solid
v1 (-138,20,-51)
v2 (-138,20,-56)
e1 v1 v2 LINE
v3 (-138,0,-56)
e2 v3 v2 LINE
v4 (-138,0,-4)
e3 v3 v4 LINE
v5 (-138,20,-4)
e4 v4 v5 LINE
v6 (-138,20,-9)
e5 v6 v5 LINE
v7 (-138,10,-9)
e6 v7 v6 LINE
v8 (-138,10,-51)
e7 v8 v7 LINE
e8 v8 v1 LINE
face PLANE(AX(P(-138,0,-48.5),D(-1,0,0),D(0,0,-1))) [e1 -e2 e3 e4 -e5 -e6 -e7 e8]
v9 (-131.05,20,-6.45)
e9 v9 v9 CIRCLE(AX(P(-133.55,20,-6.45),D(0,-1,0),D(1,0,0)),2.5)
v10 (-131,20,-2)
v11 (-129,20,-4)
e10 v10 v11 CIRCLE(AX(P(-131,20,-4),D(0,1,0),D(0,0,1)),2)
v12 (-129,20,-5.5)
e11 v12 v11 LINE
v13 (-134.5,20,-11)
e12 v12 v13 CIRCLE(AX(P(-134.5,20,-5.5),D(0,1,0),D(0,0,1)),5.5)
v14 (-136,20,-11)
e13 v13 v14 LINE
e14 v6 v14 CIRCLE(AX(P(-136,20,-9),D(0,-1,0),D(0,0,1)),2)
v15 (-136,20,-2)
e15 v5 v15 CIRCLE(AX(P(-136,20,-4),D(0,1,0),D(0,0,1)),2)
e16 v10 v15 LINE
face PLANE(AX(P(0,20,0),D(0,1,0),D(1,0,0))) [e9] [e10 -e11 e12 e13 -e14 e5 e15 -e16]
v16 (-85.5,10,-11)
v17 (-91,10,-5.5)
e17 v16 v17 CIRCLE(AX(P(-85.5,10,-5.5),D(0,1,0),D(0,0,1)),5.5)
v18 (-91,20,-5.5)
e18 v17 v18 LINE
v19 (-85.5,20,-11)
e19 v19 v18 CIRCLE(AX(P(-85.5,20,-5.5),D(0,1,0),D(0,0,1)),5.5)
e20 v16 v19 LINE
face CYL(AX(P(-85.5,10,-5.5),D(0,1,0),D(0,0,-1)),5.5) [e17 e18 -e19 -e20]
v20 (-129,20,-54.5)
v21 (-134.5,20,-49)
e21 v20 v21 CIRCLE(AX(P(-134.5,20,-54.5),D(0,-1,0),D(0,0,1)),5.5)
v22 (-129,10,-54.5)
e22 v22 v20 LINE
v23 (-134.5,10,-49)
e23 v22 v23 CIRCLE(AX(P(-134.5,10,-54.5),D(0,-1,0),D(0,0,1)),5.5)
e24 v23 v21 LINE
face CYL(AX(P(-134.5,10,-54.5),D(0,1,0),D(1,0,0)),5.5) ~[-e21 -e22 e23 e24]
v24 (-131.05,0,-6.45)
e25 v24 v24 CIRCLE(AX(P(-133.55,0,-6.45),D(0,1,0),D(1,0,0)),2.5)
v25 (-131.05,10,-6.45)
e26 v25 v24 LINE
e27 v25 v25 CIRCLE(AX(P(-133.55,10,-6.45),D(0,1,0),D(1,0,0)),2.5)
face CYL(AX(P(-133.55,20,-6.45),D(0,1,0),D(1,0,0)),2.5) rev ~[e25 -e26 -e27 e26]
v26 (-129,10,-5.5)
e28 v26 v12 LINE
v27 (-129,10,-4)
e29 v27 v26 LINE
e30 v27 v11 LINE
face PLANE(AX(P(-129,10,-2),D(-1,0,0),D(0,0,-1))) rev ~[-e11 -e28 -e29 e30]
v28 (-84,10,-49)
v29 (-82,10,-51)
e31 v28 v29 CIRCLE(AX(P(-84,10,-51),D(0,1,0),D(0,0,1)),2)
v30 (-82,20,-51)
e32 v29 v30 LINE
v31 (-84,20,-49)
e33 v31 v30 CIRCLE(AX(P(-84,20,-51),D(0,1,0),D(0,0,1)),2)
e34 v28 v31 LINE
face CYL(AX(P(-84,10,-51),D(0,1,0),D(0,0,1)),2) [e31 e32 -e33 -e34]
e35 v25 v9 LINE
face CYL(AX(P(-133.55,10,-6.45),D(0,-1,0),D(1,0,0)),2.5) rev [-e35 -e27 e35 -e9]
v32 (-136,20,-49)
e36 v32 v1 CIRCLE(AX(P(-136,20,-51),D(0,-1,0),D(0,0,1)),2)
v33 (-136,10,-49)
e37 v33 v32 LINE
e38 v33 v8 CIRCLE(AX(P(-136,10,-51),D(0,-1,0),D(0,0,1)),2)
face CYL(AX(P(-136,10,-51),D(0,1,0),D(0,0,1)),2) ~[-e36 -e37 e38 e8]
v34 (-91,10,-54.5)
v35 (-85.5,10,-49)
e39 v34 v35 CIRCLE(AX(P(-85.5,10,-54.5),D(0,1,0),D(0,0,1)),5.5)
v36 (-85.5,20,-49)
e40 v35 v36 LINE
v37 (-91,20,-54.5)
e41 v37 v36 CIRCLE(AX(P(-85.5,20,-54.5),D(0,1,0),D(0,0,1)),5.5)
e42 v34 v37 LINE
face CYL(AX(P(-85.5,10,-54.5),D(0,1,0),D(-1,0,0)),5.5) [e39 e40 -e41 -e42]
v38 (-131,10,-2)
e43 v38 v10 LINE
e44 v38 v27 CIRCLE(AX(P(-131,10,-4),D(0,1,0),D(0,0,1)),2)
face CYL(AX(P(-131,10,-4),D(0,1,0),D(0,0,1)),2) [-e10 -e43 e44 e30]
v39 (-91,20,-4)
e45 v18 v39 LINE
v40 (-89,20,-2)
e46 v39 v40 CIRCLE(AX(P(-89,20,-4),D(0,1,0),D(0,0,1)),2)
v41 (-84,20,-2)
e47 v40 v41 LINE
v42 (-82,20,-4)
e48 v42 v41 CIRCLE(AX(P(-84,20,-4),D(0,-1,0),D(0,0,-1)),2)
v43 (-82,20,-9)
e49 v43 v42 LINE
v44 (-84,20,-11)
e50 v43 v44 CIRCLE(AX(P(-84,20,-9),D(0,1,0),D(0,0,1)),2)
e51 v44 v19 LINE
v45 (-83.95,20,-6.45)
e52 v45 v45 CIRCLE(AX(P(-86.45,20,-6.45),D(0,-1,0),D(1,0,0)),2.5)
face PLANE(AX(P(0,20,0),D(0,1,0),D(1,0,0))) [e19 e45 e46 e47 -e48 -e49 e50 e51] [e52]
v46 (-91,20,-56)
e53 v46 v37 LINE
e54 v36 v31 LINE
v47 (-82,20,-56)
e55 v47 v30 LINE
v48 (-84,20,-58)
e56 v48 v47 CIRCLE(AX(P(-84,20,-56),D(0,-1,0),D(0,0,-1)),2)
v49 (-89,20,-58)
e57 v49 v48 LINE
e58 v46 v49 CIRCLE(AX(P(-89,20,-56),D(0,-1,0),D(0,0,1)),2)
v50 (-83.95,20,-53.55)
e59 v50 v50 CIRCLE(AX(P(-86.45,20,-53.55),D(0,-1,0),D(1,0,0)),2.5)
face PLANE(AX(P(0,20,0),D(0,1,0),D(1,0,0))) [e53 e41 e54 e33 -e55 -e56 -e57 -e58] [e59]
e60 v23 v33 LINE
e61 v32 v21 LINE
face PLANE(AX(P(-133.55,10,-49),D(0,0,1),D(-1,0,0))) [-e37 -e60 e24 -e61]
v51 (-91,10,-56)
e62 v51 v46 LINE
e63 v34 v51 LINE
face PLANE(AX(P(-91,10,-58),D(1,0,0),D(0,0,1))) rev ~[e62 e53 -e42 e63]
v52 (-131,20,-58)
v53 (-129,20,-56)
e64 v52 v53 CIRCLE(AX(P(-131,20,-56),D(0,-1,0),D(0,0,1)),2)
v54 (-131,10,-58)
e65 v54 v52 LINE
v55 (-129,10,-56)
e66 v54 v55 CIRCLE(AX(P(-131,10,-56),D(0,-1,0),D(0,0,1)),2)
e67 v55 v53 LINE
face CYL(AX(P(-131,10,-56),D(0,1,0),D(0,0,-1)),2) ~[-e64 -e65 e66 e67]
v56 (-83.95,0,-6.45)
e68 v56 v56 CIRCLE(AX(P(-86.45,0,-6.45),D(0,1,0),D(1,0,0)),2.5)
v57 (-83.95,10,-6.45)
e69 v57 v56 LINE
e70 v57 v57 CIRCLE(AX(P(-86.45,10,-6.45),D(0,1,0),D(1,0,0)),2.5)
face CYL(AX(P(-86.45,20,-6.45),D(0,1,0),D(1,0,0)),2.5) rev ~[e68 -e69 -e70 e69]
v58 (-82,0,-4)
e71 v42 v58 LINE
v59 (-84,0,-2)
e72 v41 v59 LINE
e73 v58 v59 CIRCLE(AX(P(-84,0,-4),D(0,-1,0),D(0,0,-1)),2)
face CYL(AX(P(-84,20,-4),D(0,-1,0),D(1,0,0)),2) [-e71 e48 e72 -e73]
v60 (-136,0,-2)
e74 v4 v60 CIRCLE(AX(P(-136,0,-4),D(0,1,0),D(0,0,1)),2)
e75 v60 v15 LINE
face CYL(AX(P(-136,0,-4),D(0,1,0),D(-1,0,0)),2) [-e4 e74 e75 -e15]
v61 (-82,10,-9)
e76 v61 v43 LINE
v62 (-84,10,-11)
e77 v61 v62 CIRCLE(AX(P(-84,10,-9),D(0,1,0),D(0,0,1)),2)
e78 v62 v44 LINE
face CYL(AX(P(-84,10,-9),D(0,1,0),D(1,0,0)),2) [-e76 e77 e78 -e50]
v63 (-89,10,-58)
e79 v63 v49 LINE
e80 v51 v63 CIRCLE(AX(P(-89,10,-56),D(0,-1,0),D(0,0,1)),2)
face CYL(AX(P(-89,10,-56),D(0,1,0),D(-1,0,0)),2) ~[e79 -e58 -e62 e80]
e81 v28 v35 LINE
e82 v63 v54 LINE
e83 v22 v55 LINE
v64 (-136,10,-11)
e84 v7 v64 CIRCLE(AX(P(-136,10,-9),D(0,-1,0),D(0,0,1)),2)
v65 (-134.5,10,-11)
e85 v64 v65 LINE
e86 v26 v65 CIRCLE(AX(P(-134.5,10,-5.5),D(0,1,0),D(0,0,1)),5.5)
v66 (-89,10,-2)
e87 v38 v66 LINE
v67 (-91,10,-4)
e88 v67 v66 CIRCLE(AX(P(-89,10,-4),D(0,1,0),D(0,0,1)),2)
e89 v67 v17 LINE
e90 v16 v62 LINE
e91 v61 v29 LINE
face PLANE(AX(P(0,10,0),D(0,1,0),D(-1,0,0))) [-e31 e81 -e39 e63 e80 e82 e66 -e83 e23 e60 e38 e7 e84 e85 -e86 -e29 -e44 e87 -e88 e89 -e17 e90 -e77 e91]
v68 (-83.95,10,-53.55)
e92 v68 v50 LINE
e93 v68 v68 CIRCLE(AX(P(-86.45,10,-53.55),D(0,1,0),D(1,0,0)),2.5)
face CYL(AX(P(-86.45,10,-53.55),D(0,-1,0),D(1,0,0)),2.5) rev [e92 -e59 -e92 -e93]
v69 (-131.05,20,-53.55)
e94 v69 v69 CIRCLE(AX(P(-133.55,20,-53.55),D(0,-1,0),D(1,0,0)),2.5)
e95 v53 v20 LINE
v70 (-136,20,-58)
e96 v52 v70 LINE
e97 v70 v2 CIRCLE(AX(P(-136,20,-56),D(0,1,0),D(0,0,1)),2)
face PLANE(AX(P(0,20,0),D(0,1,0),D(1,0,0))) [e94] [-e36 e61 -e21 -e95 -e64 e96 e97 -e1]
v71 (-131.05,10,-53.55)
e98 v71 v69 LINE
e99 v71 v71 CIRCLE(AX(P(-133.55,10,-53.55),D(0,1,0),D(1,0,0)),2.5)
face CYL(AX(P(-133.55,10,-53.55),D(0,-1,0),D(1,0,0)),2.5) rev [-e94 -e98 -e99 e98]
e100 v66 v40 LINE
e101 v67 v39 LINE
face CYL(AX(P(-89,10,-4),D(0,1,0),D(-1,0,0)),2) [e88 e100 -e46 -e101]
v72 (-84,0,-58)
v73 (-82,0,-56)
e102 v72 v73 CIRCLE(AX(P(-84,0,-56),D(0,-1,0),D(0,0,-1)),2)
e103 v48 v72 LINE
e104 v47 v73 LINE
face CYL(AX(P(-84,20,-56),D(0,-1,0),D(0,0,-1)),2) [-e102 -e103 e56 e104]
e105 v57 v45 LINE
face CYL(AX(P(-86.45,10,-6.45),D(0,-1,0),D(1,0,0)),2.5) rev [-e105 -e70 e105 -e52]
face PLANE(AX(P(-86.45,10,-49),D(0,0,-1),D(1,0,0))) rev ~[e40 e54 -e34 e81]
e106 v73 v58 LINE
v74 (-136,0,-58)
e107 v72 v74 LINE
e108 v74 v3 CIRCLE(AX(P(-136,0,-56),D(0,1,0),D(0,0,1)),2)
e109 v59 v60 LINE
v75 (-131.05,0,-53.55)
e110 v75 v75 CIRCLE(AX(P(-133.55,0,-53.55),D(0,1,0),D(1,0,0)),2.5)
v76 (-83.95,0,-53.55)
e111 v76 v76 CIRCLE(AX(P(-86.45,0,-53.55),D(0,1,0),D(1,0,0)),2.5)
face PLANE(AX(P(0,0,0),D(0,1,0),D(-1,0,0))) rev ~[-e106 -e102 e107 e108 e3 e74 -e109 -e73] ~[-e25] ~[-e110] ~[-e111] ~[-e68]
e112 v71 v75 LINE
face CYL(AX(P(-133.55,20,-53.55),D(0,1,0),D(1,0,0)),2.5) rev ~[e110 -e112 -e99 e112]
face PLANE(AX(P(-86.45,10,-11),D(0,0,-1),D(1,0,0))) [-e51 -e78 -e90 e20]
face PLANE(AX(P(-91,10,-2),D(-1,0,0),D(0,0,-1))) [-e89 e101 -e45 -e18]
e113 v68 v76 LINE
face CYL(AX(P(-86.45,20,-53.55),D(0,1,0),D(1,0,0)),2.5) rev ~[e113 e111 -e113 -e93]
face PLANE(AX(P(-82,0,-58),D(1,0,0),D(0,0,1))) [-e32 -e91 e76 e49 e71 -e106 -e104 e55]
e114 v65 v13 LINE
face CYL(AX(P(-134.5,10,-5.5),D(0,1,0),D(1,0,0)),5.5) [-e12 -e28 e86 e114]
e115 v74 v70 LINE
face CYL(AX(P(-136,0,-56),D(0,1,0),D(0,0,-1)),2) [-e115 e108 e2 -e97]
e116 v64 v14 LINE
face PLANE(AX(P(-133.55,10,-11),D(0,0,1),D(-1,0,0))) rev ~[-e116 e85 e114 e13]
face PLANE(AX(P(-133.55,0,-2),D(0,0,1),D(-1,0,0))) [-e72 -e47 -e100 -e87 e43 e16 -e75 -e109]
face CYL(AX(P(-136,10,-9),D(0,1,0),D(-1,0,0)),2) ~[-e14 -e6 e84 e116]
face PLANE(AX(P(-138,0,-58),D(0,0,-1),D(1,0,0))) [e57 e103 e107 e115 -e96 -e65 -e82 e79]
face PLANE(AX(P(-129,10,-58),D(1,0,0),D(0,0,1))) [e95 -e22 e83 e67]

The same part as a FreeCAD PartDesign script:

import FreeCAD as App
import Part
import Sketcher

V = App.Vector


def edges_at(feature, points):
    """Names of the edges that pass closest to the given points."""
    edges = feature.Shape.Edges
    near = lambda p: min(range(len(edges)), key=lambda i: edges[i].distToShape(Part.Vertex(*p))[0])
    return sorted({f"Edge{near(p) + 1}" for p in points})


def add_polygon(sketch, points):
    """Adds a closed chain of lines whose ends are joined by coincident constraints."""
    first, n = sketch.GeometryCount, len(points)
    for a, b in zip(points, points[1:] + points[:1]):
        sketch.addGeometry(Part.LineSegment(App.Vector(*a, 0), App.Vector(*b, 0)), False)
    for i in range(n):
        sketch.addConstraint(Sketcher.Constraint("Coincident", first + i, 2, first + (i + 1) % n, 1))

doc = App.newDocument("Part")
body = doc.addObject("PartDesign::Body", "Body")

sketch1 = body.newObject("Sketcher::SketchObject", "Sketch")
sketch1.AttachmentSupport = (doc.getObject("XZ_Plane"), [""])
sketch1.MapMode = "FlatFace"
add_polygon(sketch1, [(-138, -58), (-138, -2), (-82, -2), (-82, -58)])
sketch1.addConstraint([
    Sketcher.Constraint("Vertical", 0),
    Sketcher.Constraint("Horizontal", 1),
    Sketcher.Constraint("Vertical", 2),
    Sketcher.Constraint("Horizontal", 3),
    Sketcher.Constraint("Equal", 3, 0),
    Sketcher.Constraint("DistanceX", 1, 1, 1, 2, 56.0),
    Sketcher.Constraint("DistanceX", 0, 2, -1, 1, 138.0),
    Sketcher.Constraint("DistanceY", 0, 2, -1, 1, 2.0),
])
pad1 = body.newObject("PartDesign::Pad", "Pad")
pad1.Profile = sketch1
pad1.Length = 10
pad1.Reversed = True

sketch2 = body.newObject("Sketcher::SketchObject", "Sketch001")
sketch2.AttachmentSupport = (doc.getObject("XZ_Plane"), [""])
sketch2.MapMode = "FlatFace"
sketch2.AttachmentOffset = App.Placement(V(0, 0, -10), App.Rotation())
add_polygon(sketch2, [(-82, -58), (-91, -58), (-91, -49), (-82, -49)])
sketch2.addGeometry(Part.Circle(V(-86.45, -53.55, 0), V(0, 0, 1), 2.5), False)
add_polygon(sketch2, [(-82, -2), (-82, -11), (-91, -11), (-91, -2)])
sketch2.addGeometry(Part.Circle(V(-86.45, -6.45, 0), V(0, 0, 1), 2.5), False)
add_polygon(sketch2, [(-129, -58), (-138, -58), (-138, -49), (-129, -49)])
sketch2.addGeometry(Part.Circle(V(-133.55, -53.55, 0), V(0, 0, 1), 2.5), False)
add_polygon(sketch2, [(-129, -2), (-129, -11), (-138, -11), (-138, -2)])
sketch2.addGeometry(Part.Circle(V(-133.55, -6.45, 0), V(0, 0, 1), 2.5), False)
sketch2.addConstraint([
    Sketcher.Constraint("Horizontal", 0),
    Sketcher.Constraint("Vertical", 1),
    Sketcher.Constraint("Horizontal", 2),
    Sketcher.Constraint("Vertical", 3),
    Sketcher.Constraint("Vertical", 5),
    Sketcher.Constraint("Horizontal", 6),
    Sketcher.Constraint("Vertical", 7),
    Sketcher.Constraint("Horizontal", 8),
    Sketcher.Constraint("Horizontal", 10),
    Sketcher.Constraint("Vertical", 11),
    Sketcher.Constraint("Horizontal", 12),
    Sketcher.Constraint("Vertical", 13),
    Sketcher.Constraint("Vertical", 15),
    Sketcher.Constraint("Horizontal", 16),
    Sketcher.Constraint("Vertical", 17),
    Sketcher.Constraint("Horizontal", 18),
    Sketcher.Constraint("Equal", 4, 9),
    Sketcher.Constraint("Equal", 9, 14),
    Sketcher.Constraint("Equal", 14, 19),
    Sketcher.Constraint("Horizontal", 4, 3, 14, 3),
    Sketcher.Constraint("Horizontal", 9, 3, 19, 3),
    Sketcher.Constraint("Horizontal", 3, 2, 10, 2),
    Sketcher.Constraint("Horizontal", 2, 2, 11, 2),
    Sketcher.Constraint("Horizontal", 6, 2, 15, 2),
    Sketcher.Constraint("Horizontal", 8, 2, 17, 2),
    Sketcher.Constraint("Vertical", 4, 3, 9, 3),
    Sketcher.Constraint("Vertical", 14, 3, 19, 3),
    Sketcher.Constraint("Vertical", 3, 2, 5, 2),
    Sketcher.Constraint("Vertical", 1, 2, 6, 2),
    Sketcher.Constraint("Vertical", 13, 2, 15, 2),
    Sketcher.Constraint("Vertical", 11, 2, 16, 2),
    Sketcher.Constraint("Equal", 8, 10),
    Sketcher.Constraint("Equal", 18, 1),
    Sketcher.Constraint("Equal", 3, 5),
    Sketcher.Constraint("DistanceX", 0, 2, 0, 1, 9.0),
    Sketcher.Constraint("Diameter", 4, 5.0),
    Sketcher.Constraint("DistanceX", 0, 2, -1, 1, 91.0),
    Sketcher.Constraint("DistanceY", 0, 2, -1, 1, 58.0),
    Sketcher.Constraint("DistanceY", 5, 2, -1, 1, 11.0),
    Sketcher.Constraint("DistanceX", 10, 2, -1, 1, 138.0),
    Sketcher.Constraint("DistanceY", 4, 3, 9, 3, 47.1),
    Sketcher.Constraint("DistanceX", 14, 3, 4, 3, 47.1),
    Sketcher.Constraint("DistanceX", 4, 3, -1, 1, 86.45),
    Sketcher.Constraint("DistanceY", 4, 3, -1, 1, 53.55),
])
pad2 = body.newObject("PartDesign::Pad", "Pad001")
pad2.Profile = sketch2
pad2.Length = 10
pad2.Reversed = True
doc.recompute()

fillet = body.newObject("PartDesign::Fillet", "Fillet")
fillet.Base = (pad2, edges_at(pad2, [
    (-91, 15, -49),
    (-129, 15, -49),
    (-129, 15, -11),
    (-91, 15, -11),
]))
fillet.Radius = 5.5
doc.recompute()

fillet2 = body.newObject("PartDesign::Fillet", "Fillet001")
fillet2.Base = (fillet, edges_at(fillet, [
    (-82, 10, -2),
    (-138, 10, -2),
    (-138, 10, -58),
    (-82, 10, -58),
    (-91, 15, -58),
    (-82, 15, -49),
    (-129, 15, -58),
    (-138, 15, -49),
    (-138, 15, -11),
    (-129, 15, -2),
    (-91, 15, -2),
    (-82, 15, -11),
]))
fillet2.Radius = 2

sketch3 = body.newObject("Sketcher::SketchObject", "Sketch002")
sketch3.AttachmentSupport = (doc.getObject("XZ_Plane"), [""])
sketch3.MapMode = "FlatFace"
sketch3.AttachmentOffset = App.Placement(V(0, 0, -20), App.Rotation())
sketch3.addGeometry([
    Part.Circle(V(-133.55, -53.55, 0), V(0, 0, 1), 2.5),
    Part.Circle(V(-86.45, -53.55, 0), V(0, 0, 1), 2.5),
    Part.Circle(V(-133.55, -6.45, 0), V(0, 0, 1), 2.5),
    Part.Circle(V(-86.45, -6.45, 0), V(0, 0, 1), 2.5),
], False)
sketch3.addConstraint([
    Sketcher.Constraint("Equal", 0, 1),
    Sketcher.Constraint("Equal", 1, 2),
    Sketcher.Constraint("Equal", 2, 3),
    Sketcher.Constraint("Horizontal", 0, 3, 1, 3),
    Sketcher.Constraint("Horizontal", 2, 3, 3, 3),
    Sketcher.Constraint("Vertical", 0, 3, 2, 3),
    Sketcher.Constraint("Vertical", 1, 3, 3, 3),
    Sketcher.Constraint("Diameter", 0, 5.0),
    Sketcher.Constraint("DistanceX", 0, 3, 1, 3, 47.1),
    Sketcher.Constraint("DistanceY", 0, 3, 2, 3, 47.1),
    Sketcher.Constraint("DistanceX", 0, 3, -1, 1, 133.55),
    Sketcher.Constraint("DistanceY", 0, 3, -1, 1, 53.55),
])
pocket1 = body.newObject("PartDesign::Pocket", "Pocket")
pocket1.Profile = sketch3
pocket1.Type = "ThroughAll"
pocket1.Reversed = True

doc.recompute()
